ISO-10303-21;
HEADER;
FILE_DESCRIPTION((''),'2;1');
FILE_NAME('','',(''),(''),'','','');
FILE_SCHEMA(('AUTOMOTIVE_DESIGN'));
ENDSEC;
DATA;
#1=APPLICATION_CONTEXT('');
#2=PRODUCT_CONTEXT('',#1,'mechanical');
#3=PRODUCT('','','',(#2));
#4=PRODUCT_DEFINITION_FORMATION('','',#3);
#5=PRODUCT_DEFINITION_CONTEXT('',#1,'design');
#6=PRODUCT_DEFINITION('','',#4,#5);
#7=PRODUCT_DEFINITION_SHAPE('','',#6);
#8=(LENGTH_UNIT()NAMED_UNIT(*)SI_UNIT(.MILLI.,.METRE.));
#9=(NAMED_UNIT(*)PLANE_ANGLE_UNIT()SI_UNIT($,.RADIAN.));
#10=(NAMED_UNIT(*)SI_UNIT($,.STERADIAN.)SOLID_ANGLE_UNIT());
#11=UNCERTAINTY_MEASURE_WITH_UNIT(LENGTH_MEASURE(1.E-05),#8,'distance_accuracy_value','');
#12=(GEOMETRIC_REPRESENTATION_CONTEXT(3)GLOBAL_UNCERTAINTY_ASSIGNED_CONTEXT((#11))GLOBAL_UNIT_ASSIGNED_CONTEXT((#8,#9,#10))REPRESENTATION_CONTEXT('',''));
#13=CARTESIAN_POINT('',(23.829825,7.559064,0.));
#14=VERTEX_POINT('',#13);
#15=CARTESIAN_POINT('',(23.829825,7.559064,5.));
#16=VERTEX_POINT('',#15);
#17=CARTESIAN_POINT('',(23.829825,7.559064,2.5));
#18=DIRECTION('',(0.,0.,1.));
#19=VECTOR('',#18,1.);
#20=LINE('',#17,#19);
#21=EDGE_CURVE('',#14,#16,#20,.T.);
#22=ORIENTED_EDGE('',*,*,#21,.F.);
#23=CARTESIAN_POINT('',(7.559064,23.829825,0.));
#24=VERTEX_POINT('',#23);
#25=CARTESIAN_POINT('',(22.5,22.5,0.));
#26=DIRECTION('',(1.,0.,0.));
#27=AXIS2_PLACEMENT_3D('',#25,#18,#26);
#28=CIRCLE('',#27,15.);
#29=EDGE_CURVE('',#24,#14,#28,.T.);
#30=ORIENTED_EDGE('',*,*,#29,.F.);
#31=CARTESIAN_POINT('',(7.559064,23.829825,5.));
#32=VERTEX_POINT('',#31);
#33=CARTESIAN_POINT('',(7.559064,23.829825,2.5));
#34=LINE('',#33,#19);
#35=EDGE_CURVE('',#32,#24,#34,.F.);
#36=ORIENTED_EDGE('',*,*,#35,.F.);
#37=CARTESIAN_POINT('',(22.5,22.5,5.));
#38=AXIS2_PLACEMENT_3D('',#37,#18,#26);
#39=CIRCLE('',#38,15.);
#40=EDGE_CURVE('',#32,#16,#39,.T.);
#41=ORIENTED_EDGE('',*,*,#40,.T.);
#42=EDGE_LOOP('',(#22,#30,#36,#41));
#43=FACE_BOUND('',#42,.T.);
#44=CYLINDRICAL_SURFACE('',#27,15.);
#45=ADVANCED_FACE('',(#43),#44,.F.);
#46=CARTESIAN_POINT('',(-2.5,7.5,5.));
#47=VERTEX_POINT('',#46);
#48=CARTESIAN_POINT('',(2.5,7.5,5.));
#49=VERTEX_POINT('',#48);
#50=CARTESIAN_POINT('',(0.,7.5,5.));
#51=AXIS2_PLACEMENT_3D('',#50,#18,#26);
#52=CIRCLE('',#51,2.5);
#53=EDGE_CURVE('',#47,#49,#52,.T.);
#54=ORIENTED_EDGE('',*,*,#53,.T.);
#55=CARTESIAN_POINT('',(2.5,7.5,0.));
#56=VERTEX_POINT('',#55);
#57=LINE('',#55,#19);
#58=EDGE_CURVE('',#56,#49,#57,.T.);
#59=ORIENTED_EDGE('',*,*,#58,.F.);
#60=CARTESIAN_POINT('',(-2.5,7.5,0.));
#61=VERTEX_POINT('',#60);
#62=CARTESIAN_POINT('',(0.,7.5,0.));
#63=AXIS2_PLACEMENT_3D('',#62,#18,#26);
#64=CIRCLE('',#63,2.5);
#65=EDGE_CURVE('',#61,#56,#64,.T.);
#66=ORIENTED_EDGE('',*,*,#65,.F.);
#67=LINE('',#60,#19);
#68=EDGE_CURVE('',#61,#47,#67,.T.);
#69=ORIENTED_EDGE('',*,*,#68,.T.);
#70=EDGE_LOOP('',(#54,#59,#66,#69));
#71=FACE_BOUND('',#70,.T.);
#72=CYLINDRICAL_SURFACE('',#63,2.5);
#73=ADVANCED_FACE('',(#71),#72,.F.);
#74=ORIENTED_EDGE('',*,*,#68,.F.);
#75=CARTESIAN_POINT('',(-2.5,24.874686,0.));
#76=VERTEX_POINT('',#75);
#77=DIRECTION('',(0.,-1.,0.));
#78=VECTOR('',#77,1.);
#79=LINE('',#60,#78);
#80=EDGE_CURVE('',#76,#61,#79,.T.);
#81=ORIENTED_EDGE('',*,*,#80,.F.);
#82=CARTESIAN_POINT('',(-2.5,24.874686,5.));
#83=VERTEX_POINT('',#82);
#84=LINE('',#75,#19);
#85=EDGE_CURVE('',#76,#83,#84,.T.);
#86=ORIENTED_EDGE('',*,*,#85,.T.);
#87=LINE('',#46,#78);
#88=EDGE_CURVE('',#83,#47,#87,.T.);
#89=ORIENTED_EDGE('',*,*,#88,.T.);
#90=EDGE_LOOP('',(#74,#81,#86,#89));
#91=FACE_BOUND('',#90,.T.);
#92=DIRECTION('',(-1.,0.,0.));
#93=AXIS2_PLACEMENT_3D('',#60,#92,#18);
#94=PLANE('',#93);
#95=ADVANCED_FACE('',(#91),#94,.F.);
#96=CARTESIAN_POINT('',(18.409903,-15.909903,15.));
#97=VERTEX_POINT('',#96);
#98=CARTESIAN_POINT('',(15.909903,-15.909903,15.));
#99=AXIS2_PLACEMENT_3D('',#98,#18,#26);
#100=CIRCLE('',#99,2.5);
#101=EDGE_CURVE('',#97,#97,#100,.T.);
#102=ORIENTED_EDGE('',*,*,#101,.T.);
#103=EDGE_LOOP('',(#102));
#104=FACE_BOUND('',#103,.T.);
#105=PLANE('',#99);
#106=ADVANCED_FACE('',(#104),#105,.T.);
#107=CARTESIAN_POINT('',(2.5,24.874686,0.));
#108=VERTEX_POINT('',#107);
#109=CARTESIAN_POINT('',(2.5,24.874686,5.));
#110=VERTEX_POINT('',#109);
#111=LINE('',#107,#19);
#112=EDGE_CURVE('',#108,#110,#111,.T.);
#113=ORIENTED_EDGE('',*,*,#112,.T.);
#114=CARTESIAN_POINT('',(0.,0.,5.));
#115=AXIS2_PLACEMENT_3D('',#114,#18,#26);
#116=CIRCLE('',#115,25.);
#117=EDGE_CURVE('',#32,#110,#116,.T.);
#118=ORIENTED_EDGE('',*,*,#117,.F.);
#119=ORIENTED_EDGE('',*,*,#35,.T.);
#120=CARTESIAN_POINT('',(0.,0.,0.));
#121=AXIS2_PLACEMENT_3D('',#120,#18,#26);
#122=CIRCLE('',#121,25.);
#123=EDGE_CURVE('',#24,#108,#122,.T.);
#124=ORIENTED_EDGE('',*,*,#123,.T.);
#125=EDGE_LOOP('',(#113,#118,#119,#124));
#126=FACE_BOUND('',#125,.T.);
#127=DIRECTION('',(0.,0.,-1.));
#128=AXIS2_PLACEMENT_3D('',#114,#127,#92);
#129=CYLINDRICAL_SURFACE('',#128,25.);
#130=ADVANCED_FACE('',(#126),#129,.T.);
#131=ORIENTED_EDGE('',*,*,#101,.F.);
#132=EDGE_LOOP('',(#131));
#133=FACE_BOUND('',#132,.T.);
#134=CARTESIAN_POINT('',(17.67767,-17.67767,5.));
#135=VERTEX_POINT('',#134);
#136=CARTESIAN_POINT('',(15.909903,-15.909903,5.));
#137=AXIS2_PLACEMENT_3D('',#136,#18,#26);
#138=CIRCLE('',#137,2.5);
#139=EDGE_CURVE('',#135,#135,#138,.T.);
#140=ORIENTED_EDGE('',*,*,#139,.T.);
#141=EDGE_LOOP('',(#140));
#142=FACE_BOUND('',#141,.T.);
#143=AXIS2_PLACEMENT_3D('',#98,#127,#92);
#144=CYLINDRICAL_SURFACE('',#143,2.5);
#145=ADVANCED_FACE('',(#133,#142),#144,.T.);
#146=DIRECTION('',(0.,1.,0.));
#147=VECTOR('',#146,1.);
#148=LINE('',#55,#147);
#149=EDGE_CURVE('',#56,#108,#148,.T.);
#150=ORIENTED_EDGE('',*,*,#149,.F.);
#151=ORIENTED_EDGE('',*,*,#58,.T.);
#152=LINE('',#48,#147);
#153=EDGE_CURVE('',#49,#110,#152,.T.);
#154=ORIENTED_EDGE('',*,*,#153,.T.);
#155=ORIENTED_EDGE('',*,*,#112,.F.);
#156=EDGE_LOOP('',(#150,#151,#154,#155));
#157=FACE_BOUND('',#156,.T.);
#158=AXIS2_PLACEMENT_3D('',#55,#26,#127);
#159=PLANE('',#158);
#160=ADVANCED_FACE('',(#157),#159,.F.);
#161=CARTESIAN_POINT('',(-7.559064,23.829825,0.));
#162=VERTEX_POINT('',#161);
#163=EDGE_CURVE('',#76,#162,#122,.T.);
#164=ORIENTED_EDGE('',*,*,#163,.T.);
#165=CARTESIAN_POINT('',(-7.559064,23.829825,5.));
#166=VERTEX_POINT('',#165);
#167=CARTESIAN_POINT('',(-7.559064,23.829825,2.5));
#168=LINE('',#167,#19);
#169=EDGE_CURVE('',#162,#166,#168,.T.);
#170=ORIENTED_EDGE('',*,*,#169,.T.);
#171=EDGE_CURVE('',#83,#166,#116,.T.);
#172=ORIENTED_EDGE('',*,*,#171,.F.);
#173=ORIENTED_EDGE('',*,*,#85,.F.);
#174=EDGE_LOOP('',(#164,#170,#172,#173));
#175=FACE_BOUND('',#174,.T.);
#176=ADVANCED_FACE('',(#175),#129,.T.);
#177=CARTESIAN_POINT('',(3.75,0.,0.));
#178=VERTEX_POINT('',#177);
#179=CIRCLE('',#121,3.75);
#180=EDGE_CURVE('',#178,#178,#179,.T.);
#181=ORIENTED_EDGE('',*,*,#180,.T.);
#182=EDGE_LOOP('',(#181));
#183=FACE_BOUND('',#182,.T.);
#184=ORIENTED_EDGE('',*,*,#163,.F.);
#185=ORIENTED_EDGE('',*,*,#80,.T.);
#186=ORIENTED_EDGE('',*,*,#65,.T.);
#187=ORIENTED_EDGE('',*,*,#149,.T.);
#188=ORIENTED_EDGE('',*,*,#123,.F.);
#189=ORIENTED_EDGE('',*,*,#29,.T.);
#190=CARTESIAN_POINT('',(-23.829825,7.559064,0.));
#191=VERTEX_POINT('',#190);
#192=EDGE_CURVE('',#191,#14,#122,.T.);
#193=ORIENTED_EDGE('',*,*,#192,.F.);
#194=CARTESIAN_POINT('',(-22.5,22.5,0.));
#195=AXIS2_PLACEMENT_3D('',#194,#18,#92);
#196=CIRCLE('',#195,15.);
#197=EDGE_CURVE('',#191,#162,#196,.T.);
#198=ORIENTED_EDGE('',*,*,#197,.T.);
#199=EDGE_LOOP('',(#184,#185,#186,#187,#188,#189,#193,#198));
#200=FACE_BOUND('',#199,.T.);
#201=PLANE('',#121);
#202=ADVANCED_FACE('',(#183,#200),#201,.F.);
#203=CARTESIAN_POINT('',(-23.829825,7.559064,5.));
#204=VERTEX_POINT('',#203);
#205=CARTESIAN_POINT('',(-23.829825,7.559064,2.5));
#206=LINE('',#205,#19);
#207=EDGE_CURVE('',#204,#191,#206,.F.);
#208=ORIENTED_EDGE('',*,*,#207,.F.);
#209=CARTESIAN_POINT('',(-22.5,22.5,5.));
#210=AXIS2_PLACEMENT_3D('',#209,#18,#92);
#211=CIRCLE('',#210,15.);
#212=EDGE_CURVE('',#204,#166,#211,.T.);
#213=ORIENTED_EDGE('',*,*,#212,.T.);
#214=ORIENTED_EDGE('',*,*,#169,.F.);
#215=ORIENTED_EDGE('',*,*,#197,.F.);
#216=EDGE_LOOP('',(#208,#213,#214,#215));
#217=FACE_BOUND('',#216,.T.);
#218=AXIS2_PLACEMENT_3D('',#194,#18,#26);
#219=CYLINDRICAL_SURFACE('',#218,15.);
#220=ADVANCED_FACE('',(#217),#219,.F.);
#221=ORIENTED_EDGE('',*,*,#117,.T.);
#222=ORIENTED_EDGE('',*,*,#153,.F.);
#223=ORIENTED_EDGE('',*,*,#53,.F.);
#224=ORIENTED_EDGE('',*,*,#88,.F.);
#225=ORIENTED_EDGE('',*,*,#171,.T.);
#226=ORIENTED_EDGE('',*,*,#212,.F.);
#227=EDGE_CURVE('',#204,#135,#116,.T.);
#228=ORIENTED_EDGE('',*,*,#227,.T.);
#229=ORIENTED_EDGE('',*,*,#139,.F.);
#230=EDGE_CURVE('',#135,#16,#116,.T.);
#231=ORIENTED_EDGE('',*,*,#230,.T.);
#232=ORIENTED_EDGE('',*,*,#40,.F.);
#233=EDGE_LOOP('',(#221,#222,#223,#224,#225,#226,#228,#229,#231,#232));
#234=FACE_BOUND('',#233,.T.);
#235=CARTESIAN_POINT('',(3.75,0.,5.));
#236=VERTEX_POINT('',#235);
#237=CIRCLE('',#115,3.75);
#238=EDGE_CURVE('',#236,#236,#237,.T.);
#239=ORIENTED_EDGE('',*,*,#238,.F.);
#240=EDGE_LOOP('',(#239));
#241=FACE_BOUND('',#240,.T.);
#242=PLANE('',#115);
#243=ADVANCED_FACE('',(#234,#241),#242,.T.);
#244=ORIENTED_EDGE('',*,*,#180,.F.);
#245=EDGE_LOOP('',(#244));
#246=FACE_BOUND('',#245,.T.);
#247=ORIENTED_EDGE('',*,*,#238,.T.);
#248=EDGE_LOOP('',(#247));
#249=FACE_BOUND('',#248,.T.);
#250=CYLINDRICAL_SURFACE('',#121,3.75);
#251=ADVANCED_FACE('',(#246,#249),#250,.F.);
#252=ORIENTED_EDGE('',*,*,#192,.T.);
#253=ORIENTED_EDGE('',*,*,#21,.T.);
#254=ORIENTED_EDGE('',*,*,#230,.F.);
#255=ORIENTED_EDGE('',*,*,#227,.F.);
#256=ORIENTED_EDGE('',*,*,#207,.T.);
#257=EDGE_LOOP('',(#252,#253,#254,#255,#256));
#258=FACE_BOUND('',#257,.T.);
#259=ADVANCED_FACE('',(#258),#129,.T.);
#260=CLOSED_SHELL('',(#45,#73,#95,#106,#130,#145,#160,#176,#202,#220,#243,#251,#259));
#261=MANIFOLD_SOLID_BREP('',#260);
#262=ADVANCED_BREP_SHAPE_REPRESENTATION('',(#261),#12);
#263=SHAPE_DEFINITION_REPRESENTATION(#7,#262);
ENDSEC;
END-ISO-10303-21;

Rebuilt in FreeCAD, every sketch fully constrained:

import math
import FreeCAD as App
import Part
import Sketcher

V = App.Vector
Q = App.Units.Quantity

doc = App.newDocument("Part")
body = doc.addObject("PartDesign::Body", "Body")

sketch1 = doc.addObject("Sketcher::SketchObject", "Sketch")
body.addObject(sketch1)
sketch1.AttachmentSupport = (doc.XY_Plane, [""])
sketch1.MapMode = "FlatFace"
sketch1.addGeometry(Part.Circle(V(0, 0, 0), V(0, 0, 1), 25), False)
sketch1.addConstraint([
    Sketcher.Constraint("Coincident", 0, 3, -1, 1),
    Sketcher.Constraint("Diameter", 0, Q("50 mm")),
])
pad1 = doc.addObject("PartDesign::Pad", "Pad")
body.addObject(pad1)
pad1.Profile = sketch1
pad1.Length = 5

sketch2 = doc.addObject("Sketcher::SketchObject", "Sketch001")
body.addObject(sketch2)
sketch2.AttachmentSupport = (doc.XY_Plane, [""])
sketch2.MapMode = "FlatFace"
sketch2.AttachmentOffset = App.Placement(V(0, 0, 5), App.Rotation())
sketch2.addGeometry([
    Part.Circle(V(0, 0, 0), V(0, 0, 1), 3.8),
    Part.LineSegment(V(-2.5, 24.9, 0), V(-2.5, 7.5, 0)),
    Part.ArcOfCircle(Part.Circle(V(0, 7.5, 0), V(0, 0, 1), 2.5), math.radians(180), math.radians(360)),
    Part.LineSegment(V(2.5, 7.5, 0), V(2.5, 24.9, 0)),
    Part.ArcOfCircle(Part.Circle(V(0, 0, 0), V(0, 0, 1), 25), math.radians(84.26), math.radians(95.74)),
], False)
sketch2.addConstraint([
    Sketcher.Constraint("Tangent", 1, 2, 2, 1),
    Sketcher.Constraint("Tangent", 2, 2, 3, 1),
    Sketcher.Constraint("Coincident", 3, 2, 4, 1),
    Sketcher.Constraint("Coincident", 4, 2, 1, 1),
    Sketcher.Constraint("Vertical", 1),
    Sketcher.Constraint("Vertical", 3),
    Sketcher.Constraint("Coincident", 0, 3, -1, 1),
    Sketcher.Constraint("Coincident", 4, 3, -1, 1),
    Sketcher.Constraint("PointOnObject", 2, 3, -2),
    Sketcher.Constraint("Radius", 4, Q("25 mm")),
    Sketcher.Constraint("Diameter", 0, Q("7.5 mm")),
    Sketcher.Constraint("Radius", 2, Q("2.5 mm")),
    Sketcher.Constraint("DistanceY", -1, 1, 2, 3, Q("7.5 mm")),
])
pocket1 = doc.addObject("PartDesign::Pocket", "Pocket")
body.addObject(pocket1)
pocket1.Profile = sketch2
pocket1.Type = "ThroughAll"

sketch3 = doc.addObject("Sketcher::SketchObject", "Sketch002")
body.addObject(sketch3)
sketch3.AttachmentSupport = (doc.XY_Plane, [""])
sketch3.MapMode = "FlatFace"
sketch3.AttachmentOffset = App.Placement(V(0, 0, 5), App.Rotation())
sketch3.addGeometry([
    Part.Circle(V(22, 22, 0), V(0, 0, 1), 15),
    Part.Circle(V(-22, 22, 0), V(0, 0, 1), 15),
], False)
sketch3.addConstraint([
    Sketcher.Constraint("Equal", 0, 1),
    Sketcher.Constraint("Symmetric", 0, 3, 1, 3, -2),
    Sketcher.Constraint("Diameter", 0, Q("30 mm")),
    Sketcher.Constraint("DistanceX", 1, 3, 0, 3, Q("45 mm")),
    Sketcher.Constraint("DistanceY", -1, 1, 0, 3, Q("22.5 mm")),
])
pocket2 = doc.addObject("PartDesign::Pocket", "Pocket001")
body.addObject(pocket2)
pocket2.Profile = sketch3
pocket2.Type = "ThroughAll"

sketch4 = doc.addObject("Sketcher::SketchObject", "Sketch003")
body.addObject(sketch4)
sketch4.AttachmentSupport = (doc.XY_Plane, [""])
sketch4.MapMode = "FlatFace"
sketch4.AttachmentOffset = App.Placement(V(0, 0, 5), App.Rotation())
sketch4.addGeometry(Part.Circle(V(15.9, -15.9, 0), V(0, 0, 1), 2.5), False)
sketch4.addConstraint([
    Sketcher.Constraint("Diameter", 0, Q("5 mm")),
    Sketcher.Constraint("DistanceX", -1, 1, 0, 3, Q("15.909903 mm")),
    Sketcher.Constraint("DistanceY", 0, 3, -1, 1, Q("15.909903 mm")),
])
pad2 = doc.addObject("PartDesign::Pad", "Pad001")
body.addObject(pad2)
pad2.Profile = sketch4
pad2.Length = 10

doc.recompute()
